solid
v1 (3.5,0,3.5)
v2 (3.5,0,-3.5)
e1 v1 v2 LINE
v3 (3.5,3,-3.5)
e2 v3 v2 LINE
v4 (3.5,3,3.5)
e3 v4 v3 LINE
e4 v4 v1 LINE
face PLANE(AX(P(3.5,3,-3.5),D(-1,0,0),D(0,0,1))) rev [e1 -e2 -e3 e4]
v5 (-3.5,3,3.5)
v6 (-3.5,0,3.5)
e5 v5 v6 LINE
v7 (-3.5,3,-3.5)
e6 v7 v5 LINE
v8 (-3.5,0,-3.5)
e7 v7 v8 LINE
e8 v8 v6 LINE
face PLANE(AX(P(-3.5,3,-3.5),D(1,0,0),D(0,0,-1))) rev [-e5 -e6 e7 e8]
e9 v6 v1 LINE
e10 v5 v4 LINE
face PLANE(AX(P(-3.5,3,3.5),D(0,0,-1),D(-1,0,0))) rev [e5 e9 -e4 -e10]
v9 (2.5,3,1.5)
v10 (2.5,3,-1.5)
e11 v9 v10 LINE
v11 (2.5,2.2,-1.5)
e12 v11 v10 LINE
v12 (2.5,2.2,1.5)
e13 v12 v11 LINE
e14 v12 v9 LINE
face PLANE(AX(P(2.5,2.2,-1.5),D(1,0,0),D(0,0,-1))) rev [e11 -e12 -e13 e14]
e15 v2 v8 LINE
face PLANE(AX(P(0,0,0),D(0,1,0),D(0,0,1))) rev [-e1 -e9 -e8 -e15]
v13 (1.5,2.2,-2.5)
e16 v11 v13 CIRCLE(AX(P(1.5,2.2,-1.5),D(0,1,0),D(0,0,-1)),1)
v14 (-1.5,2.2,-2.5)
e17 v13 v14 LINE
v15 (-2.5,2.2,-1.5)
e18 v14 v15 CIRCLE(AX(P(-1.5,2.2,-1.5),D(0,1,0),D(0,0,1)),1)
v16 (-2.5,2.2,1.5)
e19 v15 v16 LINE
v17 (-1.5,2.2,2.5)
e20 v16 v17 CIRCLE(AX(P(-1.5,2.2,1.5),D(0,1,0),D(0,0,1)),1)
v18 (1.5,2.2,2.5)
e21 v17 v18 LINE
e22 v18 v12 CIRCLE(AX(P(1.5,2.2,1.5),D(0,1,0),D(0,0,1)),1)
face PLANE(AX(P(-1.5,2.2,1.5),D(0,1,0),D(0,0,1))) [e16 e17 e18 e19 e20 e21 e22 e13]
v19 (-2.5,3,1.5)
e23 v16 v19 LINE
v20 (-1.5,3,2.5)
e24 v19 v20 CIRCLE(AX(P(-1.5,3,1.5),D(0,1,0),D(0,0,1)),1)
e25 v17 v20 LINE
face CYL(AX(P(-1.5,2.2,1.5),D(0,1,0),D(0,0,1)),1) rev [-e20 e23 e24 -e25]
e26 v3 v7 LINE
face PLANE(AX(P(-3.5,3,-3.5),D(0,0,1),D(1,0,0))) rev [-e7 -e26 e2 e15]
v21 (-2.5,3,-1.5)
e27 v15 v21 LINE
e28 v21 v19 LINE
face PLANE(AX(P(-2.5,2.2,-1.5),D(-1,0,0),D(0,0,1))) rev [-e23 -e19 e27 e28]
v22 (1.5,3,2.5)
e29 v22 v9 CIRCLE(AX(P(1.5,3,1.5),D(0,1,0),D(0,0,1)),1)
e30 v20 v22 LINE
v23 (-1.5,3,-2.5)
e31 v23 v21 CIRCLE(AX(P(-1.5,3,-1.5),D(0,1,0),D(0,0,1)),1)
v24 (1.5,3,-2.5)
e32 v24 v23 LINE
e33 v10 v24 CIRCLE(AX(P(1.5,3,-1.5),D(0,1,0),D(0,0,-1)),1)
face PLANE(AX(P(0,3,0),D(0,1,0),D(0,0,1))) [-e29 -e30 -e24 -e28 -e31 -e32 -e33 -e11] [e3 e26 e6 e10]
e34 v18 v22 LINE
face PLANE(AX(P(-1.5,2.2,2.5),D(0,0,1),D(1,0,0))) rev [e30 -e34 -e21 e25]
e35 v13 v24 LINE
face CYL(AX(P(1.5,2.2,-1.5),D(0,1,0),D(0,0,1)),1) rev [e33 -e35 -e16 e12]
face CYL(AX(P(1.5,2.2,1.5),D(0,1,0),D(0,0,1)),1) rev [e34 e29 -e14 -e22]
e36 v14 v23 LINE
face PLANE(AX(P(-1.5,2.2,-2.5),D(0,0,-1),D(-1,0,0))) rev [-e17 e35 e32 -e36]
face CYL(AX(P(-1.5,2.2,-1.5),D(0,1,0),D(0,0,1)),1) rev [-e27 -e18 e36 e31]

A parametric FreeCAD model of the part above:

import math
import FreeCAD as App
import Part
import Sketcher

V = App.Vector


def add_polygon(sketch, points):
    """Adds a closed chain of lines whose ends are joined by coincident constraints."""
    first, n = sketch.GeometryCount, len(points)
    for a, b in zip(points, points[1:] + points[:1]):
        sketch.addGeometry(Part.LineSegment(App.Vector(*a, 0), App.Vector(*b, 0)), False)
    for i in range(n):
        sketch.addConstraint(Sketcher.Constraint("Coincident", first + i, 2, first + (i + 1) % n, 1))

doc = App.newDocument("Part")
body = doc.addObject("PartDesign::Body", "Body")

# Sketch on XZ plane
sketch1 = body.newObject("Sketcher::SketchObject", "Sketch")
sketch1.AttachmentSupport = (doc.getObject("XZ_Plane"), [""])
sketch1.MapMode = "FlatFace"
add_polygon(sketch1, [(-3.5, -3.5), (-3.5, 3.5), (3.5, 3.5), (3.5, -3.5)])  # lines 0-3
sketch1.addConstraint(Sketcher.Constraint("Vertical", 0))
sketch1.addConstraint(Sketcher.Constraint("Horizontal", 1))
sketch1.addConstraint(Sketcher.Constraint("Vertical", 2))
sketch1.addConstraint(Sketcher.Constraint("Horizontal", 3))
sketch1.addConstraint(Sketcher.Constraint("Symmetric", 0, 2, 2, 2, -1, 1))
sketch1.addConstraint(Sketcher.Constraint("Equal", 3, 0))
sketch1.addConstraint(Sketcher.Constraint("DistanceX", 1, 1, 1, 2, 7.0))
pad1 = body.newObject("PartDesign::Pad", "Pad")
pad1.Profile = sketch1
pad1.Length = 3
pad1.Reversed = True

# Sketch on XZ plane
sketch2 = body.newObject("Sketcher::SketchObject", "Sketch001")
sketch2.AttachmentSupport = (doc.getObject("XZ_Plane"), [""])
sketch2.MapMode = "FlatFace"
sketch2.AttachmentOffset = App.Placement(V(0, 0, -3), App.Rotation())
sketch2.addGeometry(Part.LineSegment(V(1.5, -2.5, 0), V(-1.5, -2.5, 0)), False)
sketch2.addGeometry(Part.ArcOfCircle(Part.Circle(V(-1.5, -1.5, 0), V(0, 0, 1), 1), math.radians(-180), math.radians(-90)), False)
sketch2.addGeometry(Part.LineSegment(V(-2.5, -1.5, 0), V(-2.5, 1.5, 0)), False)
sketch2.addGeometry(Part.ArcOfCircle(Part.Circle(V(-1.5, 1.5, 0), V(0, 0, 1), 1), math.radians(90), math.radians(180)), False)
sketch2.addGeometry(Part.LineSegment(V(-1.5, 2.5, 0), V(1.5, 2.5, 0)), False)
sketch2.addGeometry(Part.ArcOfCircle(Part.Circle(V(1.5, 1.5, 0), V(0, 0, 1), 1), math.radians(0), math.radians(90)), False)
sketch2.addGeometry(Part.LineSegment(V(2.5, 1.5, 0), V(2.5, -1.5, 0)), False)
sketch2.addGeometry(Part.ArcOfCircle(Part.Circle(V(1.5, -1.5, 0), V(0, 0, 1), 1), math.radians(-90), math.radians(0)), False)
sketch2.addConstraint(Sketcher.Constraint("Tangent", 0, 2, 1, 2))
sketch2.addConstraint(Sketcher.Constraint("Tangent", 1, 1, 2, 1))
sketch2.addConstraint(Sketcher.Constraint("Tangent", 2, 2, 3, 2))
sketch2.addConstraint(Sketcher.Constraint("Tangent", 3, 1, 4, 1))
sketch2.addConstraint(Sketcher.Constraint("Tangent", 4, 2, 5, 2))
sketch2.addConstraint(Sketcher.Constraint("Tangent", 5, 1, 6, 1))
sketch2.addConstraint(Sketcher.Constraint("Tangent", 6, 2, 7, 2))
sketch2.addConstraint(Sketcher.Constraint("Tangent", 7, 1, 0, 1))
sketch2.addConstraint(Sketcher.Constraint("Horizontal", 0))
sketch2.addConstraint(Sketcher.Constraint("Vertical", 2))
sketch2.addConstraint(Sketcher.Constraint("Horizontal", 4))
sketch2.addConstraint(Sketcher.Constraint("Vertical", 6))
sketch2.addConstraint(Sketcher.Constraint("Equal", 1, 3))
sketch2.addConstraint(Sketcher.Constraint("Equal", 3, 5))
sketch2.addConstraint(Sketcher.Constraint("Equal", 5, 7))
sketch2.addConstraint(Sketcher.Constraint("Symmetric", 1, 3, 5, 3, -1, 1))
sketch2.addConstraint(Sketcher.Constraint("Equal", 4, 2))
sketch2.addConstraint(Sketcher.Constraint("Radius", 1, 1.0))
sketch2.addConstraint(Sketcher.Constraint("DistanceX", 0, 2, 0, 1, 3.0))
pocket1 = body.newObject("PartDesign::Pocket", "Pocket")
pocket1.Profile = sketch2
pocket1.Length = 0.8
pocket1.Reversed = True

doc.recompute()
